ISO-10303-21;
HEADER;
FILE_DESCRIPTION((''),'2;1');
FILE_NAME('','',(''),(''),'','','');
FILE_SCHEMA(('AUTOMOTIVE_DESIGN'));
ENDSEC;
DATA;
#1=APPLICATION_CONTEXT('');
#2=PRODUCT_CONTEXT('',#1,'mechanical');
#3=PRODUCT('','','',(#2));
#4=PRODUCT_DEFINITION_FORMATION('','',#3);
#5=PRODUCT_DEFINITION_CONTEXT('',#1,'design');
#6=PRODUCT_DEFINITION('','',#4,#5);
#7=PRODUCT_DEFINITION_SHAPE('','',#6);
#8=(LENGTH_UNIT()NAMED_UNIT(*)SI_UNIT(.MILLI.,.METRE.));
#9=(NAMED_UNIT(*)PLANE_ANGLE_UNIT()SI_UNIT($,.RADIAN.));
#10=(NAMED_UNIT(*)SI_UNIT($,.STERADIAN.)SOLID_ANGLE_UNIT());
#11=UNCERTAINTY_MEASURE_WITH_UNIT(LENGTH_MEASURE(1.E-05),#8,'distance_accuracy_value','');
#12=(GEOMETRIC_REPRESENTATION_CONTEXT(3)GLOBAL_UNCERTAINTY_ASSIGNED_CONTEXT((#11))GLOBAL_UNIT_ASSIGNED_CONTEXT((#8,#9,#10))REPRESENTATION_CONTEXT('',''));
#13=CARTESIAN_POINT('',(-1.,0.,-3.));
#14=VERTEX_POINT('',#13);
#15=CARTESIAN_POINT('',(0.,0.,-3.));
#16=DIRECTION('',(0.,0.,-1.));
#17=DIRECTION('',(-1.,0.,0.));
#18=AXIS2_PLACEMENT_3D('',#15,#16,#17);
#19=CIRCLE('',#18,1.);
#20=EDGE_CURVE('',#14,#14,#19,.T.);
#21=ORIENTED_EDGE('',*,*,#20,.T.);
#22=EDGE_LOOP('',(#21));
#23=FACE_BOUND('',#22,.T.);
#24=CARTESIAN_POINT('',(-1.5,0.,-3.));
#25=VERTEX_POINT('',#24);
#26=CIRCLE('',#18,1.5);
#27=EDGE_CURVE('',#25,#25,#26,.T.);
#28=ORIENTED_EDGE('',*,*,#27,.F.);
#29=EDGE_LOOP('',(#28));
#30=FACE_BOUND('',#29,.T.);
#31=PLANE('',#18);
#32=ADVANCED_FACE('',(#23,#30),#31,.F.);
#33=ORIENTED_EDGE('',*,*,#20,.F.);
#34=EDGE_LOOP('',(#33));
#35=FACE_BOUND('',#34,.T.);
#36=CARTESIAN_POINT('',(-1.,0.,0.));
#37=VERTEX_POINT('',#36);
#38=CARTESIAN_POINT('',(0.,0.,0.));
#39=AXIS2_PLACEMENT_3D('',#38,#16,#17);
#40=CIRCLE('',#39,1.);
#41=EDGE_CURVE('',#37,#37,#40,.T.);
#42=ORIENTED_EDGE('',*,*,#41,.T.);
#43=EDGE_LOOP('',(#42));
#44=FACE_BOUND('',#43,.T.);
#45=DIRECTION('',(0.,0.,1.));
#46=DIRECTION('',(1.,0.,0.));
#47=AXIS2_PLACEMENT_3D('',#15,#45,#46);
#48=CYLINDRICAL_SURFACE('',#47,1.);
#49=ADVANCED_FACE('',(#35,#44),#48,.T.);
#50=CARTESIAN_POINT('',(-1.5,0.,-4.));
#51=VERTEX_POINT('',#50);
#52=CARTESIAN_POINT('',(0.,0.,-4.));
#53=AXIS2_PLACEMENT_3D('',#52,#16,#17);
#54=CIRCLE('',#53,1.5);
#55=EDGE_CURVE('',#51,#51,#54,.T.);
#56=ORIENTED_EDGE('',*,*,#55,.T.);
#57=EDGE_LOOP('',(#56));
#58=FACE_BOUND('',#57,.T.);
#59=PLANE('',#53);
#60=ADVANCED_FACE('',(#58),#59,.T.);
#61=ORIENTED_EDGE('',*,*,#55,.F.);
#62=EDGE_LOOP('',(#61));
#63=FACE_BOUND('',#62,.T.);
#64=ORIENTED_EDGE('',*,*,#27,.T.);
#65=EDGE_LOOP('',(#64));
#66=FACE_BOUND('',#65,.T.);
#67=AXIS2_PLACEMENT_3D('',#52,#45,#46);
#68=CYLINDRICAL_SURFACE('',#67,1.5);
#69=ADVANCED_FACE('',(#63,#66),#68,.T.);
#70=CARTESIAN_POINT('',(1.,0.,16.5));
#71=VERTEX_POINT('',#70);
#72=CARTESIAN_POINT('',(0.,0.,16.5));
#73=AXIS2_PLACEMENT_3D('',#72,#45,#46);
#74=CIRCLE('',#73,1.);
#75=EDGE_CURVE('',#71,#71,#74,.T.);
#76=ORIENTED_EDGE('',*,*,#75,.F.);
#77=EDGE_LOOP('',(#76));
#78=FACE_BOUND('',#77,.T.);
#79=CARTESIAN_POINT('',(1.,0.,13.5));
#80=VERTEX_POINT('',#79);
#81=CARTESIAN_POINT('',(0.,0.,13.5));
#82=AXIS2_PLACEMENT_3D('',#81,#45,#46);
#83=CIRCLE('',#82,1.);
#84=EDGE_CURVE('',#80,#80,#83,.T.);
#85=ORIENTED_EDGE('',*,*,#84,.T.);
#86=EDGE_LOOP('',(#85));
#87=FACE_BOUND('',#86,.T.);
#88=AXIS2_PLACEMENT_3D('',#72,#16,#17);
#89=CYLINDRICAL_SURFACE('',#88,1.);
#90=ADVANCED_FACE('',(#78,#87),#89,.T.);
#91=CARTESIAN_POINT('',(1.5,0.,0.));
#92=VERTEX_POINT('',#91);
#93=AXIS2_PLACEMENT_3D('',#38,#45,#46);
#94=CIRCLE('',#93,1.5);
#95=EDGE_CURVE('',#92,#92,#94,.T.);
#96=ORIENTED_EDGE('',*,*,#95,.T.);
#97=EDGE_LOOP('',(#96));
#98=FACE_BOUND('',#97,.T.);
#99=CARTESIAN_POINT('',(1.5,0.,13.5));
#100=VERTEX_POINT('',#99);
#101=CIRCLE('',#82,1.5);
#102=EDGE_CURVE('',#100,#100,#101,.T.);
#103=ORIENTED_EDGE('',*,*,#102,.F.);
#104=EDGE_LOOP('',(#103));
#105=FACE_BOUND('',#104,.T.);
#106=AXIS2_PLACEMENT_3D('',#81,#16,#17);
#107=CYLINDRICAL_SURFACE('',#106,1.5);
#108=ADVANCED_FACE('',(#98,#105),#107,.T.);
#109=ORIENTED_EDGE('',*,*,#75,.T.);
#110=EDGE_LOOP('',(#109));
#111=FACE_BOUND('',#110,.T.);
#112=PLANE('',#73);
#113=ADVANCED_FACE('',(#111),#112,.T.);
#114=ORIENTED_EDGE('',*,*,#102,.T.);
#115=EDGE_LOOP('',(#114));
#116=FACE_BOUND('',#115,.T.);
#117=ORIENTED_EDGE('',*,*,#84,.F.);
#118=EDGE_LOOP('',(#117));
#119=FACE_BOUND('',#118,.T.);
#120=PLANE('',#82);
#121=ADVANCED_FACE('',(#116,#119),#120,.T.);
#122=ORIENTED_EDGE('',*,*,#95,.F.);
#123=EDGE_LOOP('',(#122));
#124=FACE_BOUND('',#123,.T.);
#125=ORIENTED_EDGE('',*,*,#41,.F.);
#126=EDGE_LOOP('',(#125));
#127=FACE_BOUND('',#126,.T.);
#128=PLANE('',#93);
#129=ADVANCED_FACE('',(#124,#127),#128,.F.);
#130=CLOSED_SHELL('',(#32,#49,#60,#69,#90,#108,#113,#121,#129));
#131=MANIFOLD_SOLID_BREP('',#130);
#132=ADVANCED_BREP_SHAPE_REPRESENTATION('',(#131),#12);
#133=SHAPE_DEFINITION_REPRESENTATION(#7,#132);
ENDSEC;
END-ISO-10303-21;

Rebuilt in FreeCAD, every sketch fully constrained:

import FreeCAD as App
import Part
import Sketcher

V = App.Vector

doc = App.newDocument("Part")
body = doc.addObject("PartDesign::Body", "Body")

sketch1 = body.newObject("Sketcher::SketchObject", "Sketch")
sketch1.AttachmentSupport = (doc.getObject("XY_Plane"), [""])
sketch1.MapMode = "FlatFace"
sketch1.addGeometry(Part.Circle(V(0, 0, 0), V(0, 0, 1), 1.5), False)
sketch1.addConstraint(Sketcher.Constraint("Coincident", 0, 3, -1, 1))
sketch1.addConstraint(Sketcher.Constraint("Diameter", 0, 3.0))
pad1 = body.newObject("PartDesign::Pad", "Pad")
pad1.Profile = sketch1
pad1.Length = 13.5

sketch2 = body.newObject("Sketcher::SketchObject", "Sketch001")
sketch2.AttachmentSupport = (doc.getObject("XY_Plane"), [""])
sketch2.MapMode = "FlatFace"
sketch2.AttachmentOffset = App.Placement(V(0, 0, 13.5), App.Rotation())
sketch2.addGeometry(Part.Circle(V(0, 0, 0), V(0, 0, 1), 1), False)
sketch2.addConstraint(Sketcher.Constraint("Coincident", 0, 3, -1, 1))
sketch2.addConstraint(Sketcher.Constraint("Diameter", 0, 2.0))
pad2 = body.newObject("PartDesign::Pad", "Pad001")
pad2.Profile = sketch2
pad2.Length = 3

sketch3 = body.newObject("Sketcher::SketchObject", "Sketch002")
sketch3.AttachmentSupport = (doc.getObject("XY_Plane"), [""])
sketch3.MapMode = "FlatFace"
sketch3.addGeometry(Part.Circle(V(0, 0, 0), V(0, 0, 1), 1), False)
sketch3.addConstraint(Sketcher.Constraint("Coincident", 0, 3, -1, 1))
sketch3.addConstraint(Sketcher.Constraint("Diameter", 0, 2.0))
pad3 = body.newObject("PartDesign::Pad", "Pad002")
pad3.Profile = sketch3
pad3.Length = 3
pad3.Reversed = True

sketch4 = body.newObject("Sketcher::SketchObject", "Sketch003")
sketch4.AttachmentSupport = (doc.getObject("XY_Plane"), [""])
sketch4.MapMode = "FlatFace"
sketch4.AttachmentOffset = App.Placement(V(0, 0, -3), App.Rotation())
sketch4.addGeometry(Part.Circle(V(0, 0, 0), V(0, 0, 1), 1.5), False)
sketch4.addConstraint(Sketcher.Constraint("Coincident", 0, 3, -1, 1))
sketch4.addConstraint(Sketcher.Constraint("Diameter", 0, 3.0))
pad4 = body.newObject("PartDesign::Pad", "Pad003")
pad4.Profile = sketch4
pad4.Length = 1
pad4.Reversed = True

doc.recompute()
